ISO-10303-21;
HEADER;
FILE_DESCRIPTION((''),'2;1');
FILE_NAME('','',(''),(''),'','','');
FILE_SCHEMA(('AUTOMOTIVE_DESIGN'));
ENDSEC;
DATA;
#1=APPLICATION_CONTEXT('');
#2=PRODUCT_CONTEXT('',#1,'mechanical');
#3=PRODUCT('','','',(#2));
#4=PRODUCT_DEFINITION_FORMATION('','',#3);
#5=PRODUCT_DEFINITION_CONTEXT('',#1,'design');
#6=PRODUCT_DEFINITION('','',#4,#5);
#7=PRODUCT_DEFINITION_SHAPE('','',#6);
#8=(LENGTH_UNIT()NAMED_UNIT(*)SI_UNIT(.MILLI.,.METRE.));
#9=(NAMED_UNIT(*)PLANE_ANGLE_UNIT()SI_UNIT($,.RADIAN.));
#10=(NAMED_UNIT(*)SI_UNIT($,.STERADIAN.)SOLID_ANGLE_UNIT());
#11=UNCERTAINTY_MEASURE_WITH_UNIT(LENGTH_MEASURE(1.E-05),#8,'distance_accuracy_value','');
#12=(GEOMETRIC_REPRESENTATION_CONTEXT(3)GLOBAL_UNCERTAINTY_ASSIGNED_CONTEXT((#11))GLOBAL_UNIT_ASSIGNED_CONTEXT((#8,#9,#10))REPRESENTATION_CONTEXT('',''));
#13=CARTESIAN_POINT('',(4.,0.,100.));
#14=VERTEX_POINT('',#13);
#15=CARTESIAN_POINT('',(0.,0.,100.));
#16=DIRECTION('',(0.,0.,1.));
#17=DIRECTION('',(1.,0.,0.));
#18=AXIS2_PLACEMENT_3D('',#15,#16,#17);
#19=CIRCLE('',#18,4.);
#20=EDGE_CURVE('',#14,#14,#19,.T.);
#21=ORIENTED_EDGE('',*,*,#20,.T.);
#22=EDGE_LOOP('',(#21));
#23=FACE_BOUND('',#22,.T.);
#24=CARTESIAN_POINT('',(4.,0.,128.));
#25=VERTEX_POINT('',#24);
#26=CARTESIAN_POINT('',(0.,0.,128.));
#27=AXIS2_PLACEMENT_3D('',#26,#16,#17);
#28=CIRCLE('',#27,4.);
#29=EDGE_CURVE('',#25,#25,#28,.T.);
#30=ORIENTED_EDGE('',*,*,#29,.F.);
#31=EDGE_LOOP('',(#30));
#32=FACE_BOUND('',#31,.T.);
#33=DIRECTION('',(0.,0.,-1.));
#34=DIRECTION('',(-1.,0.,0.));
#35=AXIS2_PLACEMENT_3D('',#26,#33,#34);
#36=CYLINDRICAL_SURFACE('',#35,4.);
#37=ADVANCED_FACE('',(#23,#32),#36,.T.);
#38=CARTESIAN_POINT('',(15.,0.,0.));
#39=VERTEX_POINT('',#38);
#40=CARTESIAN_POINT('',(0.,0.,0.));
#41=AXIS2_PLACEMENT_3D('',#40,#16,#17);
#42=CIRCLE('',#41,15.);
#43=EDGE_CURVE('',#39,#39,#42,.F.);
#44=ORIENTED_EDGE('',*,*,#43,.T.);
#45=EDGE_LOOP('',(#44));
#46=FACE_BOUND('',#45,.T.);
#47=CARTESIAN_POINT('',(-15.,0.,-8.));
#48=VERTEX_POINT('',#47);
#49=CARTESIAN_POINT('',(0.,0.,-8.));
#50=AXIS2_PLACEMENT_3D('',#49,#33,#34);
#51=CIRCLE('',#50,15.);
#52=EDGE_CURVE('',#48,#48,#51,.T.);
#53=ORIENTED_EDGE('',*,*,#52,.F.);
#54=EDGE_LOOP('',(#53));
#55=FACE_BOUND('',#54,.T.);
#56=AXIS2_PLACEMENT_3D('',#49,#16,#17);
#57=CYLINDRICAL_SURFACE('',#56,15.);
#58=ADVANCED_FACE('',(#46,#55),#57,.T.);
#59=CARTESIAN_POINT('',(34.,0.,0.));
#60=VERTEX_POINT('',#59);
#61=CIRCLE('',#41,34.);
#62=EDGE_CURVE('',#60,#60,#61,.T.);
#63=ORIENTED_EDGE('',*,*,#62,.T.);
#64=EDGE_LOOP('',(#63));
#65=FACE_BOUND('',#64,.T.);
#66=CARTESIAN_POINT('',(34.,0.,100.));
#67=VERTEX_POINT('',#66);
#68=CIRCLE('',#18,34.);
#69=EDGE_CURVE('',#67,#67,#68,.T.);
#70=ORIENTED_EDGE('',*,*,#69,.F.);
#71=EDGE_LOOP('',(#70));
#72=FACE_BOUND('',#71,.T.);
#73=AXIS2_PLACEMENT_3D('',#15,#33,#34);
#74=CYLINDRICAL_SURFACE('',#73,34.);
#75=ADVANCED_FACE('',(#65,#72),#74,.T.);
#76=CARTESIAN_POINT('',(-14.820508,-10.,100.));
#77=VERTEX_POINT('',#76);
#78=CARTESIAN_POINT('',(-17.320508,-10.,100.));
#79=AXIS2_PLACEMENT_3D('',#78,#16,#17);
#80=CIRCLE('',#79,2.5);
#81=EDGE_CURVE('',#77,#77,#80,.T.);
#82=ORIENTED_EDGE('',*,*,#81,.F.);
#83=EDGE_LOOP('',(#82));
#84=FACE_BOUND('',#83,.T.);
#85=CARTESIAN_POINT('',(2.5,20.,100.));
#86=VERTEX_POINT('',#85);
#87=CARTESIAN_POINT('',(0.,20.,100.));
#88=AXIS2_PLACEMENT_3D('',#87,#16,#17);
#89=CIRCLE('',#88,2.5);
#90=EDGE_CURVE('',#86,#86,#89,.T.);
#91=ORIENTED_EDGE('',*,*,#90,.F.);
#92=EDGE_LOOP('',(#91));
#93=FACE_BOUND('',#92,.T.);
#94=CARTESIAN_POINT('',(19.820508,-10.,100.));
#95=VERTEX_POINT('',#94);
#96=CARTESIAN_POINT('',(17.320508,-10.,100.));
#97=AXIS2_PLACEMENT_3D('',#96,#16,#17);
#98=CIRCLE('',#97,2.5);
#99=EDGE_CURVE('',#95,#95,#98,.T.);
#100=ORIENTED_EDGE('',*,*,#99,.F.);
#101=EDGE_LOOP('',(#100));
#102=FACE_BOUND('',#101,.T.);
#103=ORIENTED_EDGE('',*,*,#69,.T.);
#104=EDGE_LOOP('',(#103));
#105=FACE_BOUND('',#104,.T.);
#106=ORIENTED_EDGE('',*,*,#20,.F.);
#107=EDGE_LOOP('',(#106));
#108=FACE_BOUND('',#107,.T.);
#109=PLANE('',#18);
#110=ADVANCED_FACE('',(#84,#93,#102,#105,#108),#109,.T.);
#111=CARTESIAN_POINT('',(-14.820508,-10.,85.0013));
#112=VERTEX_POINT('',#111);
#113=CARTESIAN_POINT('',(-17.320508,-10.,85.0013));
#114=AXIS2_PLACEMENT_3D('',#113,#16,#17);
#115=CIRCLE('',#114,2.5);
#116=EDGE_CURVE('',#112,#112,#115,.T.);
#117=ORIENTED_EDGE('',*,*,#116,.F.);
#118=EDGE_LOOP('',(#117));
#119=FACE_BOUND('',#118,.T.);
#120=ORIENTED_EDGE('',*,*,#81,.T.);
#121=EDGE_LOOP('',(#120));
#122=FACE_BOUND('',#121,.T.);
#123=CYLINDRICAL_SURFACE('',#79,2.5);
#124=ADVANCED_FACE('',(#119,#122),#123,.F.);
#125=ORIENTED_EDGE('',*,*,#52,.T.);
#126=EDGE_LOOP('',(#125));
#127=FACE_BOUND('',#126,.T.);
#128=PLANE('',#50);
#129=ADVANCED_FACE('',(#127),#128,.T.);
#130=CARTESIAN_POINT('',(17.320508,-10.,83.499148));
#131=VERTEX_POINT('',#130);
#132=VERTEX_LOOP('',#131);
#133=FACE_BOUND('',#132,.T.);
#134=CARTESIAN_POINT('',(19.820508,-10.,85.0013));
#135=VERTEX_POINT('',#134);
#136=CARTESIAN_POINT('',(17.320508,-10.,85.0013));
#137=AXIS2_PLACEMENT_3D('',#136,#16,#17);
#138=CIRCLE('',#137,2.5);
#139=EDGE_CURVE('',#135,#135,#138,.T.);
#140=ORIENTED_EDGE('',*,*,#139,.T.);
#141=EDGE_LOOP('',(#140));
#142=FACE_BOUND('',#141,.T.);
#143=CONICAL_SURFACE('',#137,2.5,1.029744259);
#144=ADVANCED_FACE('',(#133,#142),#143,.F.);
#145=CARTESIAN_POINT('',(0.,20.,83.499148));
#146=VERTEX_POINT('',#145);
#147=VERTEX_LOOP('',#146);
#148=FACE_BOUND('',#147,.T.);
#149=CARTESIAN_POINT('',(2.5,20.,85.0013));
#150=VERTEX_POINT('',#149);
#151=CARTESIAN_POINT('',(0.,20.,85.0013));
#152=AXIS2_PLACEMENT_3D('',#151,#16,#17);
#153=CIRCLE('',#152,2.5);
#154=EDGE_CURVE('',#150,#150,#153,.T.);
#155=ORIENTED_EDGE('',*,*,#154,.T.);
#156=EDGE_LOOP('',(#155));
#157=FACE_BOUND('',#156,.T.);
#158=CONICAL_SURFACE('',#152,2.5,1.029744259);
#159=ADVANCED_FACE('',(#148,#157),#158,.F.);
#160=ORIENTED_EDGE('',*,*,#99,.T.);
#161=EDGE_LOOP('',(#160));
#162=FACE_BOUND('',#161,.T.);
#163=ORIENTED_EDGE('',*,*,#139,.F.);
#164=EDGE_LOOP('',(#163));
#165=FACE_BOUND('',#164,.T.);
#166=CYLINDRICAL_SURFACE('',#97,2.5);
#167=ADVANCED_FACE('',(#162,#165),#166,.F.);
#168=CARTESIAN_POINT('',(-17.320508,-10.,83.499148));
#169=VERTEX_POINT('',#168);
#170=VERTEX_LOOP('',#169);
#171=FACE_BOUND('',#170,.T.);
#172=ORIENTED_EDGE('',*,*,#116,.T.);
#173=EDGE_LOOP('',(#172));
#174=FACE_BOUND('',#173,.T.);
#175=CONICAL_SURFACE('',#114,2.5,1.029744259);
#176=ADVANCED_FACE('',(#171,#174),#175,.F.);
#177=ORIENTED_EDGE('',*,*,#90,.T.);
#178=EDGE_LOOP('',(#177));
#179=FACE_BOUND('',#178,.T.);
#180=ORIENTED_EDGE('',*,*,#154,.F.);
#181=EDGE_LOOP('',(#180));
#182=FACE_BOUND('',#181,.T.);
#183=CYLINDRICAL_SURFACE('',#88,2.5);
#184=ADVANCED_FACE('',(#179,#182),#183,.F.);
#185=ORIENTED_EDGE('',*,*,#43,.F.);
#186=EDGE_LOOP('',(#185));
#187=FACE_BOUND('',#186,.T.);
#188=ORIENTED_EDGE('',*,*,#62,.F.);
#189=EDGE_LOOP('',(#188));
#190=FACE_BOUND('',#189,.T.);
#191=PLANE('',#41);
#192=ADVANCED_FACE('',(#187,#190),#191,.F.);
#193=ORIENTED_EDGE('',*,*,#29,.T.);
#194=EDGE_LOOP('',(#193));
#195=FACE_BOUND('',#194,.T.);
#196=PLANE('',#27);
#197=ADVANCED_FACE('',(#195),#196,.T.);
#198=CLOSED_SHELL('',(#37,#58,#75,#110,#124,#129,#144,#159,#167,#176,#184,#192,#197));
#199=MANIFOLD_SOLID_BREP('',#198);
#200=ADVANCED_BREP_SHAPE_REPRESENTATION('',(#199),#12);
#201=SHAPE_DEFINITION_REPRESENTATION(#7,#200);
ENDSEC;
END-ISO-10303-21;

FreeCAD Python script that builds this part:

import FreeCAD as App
import Part
import Sketcher

V = App.Vector
Q = App.Units.Quantity

doc = App.newDocument("Part")
body = doc.addObject("PartDesign::Body", "Body")

# Sketch on XY plane
sketch1 = body.newObject("Sketcher::SketchObject", "Sketch")
sketch1.AttachmentSupport = (doc.getObject("XY_Plane"), [""])
sketch1.MapMode = "FlatFace"
sketch1.addGeometry(Part.Circle(V(0, 0, 0), V(0, 0, 1), 34), False)
sketch1.addConstraint(Sketcher.Constraint("Coincident", 0, 3, -1, 1))
sketch1.addConstraint(Sketcher.Constraint("Diameter", 0, Q("68 mm")))
pad1 = body.newObject("PartDesign::Pad", "Pad")
pad1.Profile = sketch1
pad1.Length = 100

# Sketch on XY plane
sketch2 = body.newObject("Sketcher::SketchObject", "Sketch001")
sketch2.AttachmentSupport = (doc.getObject("XY_Plane"), [""])
sketch2.MapMode = "FlatFace"
sketch2.AttachmentOffset = App.Placement(V(0, 0, 100), App.Rotation())
sketch2.addGeometry(Part.Circle(V(0, 0, 0), V(0, 0, 1), 4), False)
sketch2.addConstraint(Sketcher.Constraint("Coincident", 0, 3, -1, 1))
sketch2.addConstraint(Sketcher.Constraint("Diameter", 0, Q("8 mm")))
pad2 = body.newObject("PartDesign::Pad", "Pad001")
pad2.Profile = sketch2
pad2.Length = 28

# Sketch on XY plane
sketch3 = body.newObject("Sketcher::SketchObject", "Sketch002")
sketch3.AttachmentSupport = (doc.getObject("XY_Plane"), [""])
sketch3.MapMode = "FlatFace"
sketch3.AttachmentOffset = App.Placement(V(0, 0, 100), App.Rotation())
sketch3.addGeometry(Part.Circle(V(0, 20, 0), V(0, 0, 1), 2.5), False)
sketch3.addGeometry(Part.Circle(V(17.3, -10, 0), V(0, 0, 1), 2.5), False)
sketch3.addGeometry(Part.Circle(V(-17.3, -10, 0), V(0, 0, 1), 2.5), False)
sketch3.addConstraint(Sketcher.Constraint("Equal", 0, 1))
sketch3.addConstraint(Sketcher.Constraint("Equal", 1, 2))
sketch3.addConstraint(Sketcher.Constraint("Symmetric", 1, 3, 2, 3, -2))
sketch3.addConstraint(Sketcher.Constraint("PointOnObject", 0, 3, -2))
sketch3.addConstraint(Sketcher.Constraint("Diameter", 0, Q("5 mm")))
sketch3.addConstraint(Sketcher.Constraint("DistanceY", -1, 1, 0, 3, Q("20 mm")))
sketch3.addConstraint(Sketcher.Constraint("DistanceY", 1, 3, -1, 1, Q("10 mm")))
sketch3.addConstraint(Sketcher.Constraint("DistanceX", -1, 1, 1, 3, Q("17.320508 mm")))
doc.recompute()
hole = body.newObject("PartDesign::Hole", "Hole")
hole.Profile = sketch3
hole.ThreadType = "None"
hole.Diameter = 5
hole.DepthType = "Dimension"
hole.Depth = 14.9987
hole.DrillPoint = "Angled"
hole.DrillPointAngle = 118

# Sketch on XY plane
sketch4 = body.newObject("Sketcher::SketchObject", "Sketch003")
sketch4.AttachmentSupport = (doc.getObject("XY_Plane"), [""])
sketch4.MapMode = "FlatFace"
sketch4.addGeometry(Part.Circle(V(0, 0, 0), V(0, 0, 1), 15), False)
sketch4.addConstraint(Sketcher.Constraint("Coincident", 0, 3, -1, 1))
sketch4.addConstraint(Sketcher.Constraint("Diameter", 0, Q("30 mm")))
pad3 = body.newObject("PartDesign::Pad", "Pad002")
pad3.Profile = sketch4
pad3.Length = 8
pad3.Reversed = True

doc.recompute()
